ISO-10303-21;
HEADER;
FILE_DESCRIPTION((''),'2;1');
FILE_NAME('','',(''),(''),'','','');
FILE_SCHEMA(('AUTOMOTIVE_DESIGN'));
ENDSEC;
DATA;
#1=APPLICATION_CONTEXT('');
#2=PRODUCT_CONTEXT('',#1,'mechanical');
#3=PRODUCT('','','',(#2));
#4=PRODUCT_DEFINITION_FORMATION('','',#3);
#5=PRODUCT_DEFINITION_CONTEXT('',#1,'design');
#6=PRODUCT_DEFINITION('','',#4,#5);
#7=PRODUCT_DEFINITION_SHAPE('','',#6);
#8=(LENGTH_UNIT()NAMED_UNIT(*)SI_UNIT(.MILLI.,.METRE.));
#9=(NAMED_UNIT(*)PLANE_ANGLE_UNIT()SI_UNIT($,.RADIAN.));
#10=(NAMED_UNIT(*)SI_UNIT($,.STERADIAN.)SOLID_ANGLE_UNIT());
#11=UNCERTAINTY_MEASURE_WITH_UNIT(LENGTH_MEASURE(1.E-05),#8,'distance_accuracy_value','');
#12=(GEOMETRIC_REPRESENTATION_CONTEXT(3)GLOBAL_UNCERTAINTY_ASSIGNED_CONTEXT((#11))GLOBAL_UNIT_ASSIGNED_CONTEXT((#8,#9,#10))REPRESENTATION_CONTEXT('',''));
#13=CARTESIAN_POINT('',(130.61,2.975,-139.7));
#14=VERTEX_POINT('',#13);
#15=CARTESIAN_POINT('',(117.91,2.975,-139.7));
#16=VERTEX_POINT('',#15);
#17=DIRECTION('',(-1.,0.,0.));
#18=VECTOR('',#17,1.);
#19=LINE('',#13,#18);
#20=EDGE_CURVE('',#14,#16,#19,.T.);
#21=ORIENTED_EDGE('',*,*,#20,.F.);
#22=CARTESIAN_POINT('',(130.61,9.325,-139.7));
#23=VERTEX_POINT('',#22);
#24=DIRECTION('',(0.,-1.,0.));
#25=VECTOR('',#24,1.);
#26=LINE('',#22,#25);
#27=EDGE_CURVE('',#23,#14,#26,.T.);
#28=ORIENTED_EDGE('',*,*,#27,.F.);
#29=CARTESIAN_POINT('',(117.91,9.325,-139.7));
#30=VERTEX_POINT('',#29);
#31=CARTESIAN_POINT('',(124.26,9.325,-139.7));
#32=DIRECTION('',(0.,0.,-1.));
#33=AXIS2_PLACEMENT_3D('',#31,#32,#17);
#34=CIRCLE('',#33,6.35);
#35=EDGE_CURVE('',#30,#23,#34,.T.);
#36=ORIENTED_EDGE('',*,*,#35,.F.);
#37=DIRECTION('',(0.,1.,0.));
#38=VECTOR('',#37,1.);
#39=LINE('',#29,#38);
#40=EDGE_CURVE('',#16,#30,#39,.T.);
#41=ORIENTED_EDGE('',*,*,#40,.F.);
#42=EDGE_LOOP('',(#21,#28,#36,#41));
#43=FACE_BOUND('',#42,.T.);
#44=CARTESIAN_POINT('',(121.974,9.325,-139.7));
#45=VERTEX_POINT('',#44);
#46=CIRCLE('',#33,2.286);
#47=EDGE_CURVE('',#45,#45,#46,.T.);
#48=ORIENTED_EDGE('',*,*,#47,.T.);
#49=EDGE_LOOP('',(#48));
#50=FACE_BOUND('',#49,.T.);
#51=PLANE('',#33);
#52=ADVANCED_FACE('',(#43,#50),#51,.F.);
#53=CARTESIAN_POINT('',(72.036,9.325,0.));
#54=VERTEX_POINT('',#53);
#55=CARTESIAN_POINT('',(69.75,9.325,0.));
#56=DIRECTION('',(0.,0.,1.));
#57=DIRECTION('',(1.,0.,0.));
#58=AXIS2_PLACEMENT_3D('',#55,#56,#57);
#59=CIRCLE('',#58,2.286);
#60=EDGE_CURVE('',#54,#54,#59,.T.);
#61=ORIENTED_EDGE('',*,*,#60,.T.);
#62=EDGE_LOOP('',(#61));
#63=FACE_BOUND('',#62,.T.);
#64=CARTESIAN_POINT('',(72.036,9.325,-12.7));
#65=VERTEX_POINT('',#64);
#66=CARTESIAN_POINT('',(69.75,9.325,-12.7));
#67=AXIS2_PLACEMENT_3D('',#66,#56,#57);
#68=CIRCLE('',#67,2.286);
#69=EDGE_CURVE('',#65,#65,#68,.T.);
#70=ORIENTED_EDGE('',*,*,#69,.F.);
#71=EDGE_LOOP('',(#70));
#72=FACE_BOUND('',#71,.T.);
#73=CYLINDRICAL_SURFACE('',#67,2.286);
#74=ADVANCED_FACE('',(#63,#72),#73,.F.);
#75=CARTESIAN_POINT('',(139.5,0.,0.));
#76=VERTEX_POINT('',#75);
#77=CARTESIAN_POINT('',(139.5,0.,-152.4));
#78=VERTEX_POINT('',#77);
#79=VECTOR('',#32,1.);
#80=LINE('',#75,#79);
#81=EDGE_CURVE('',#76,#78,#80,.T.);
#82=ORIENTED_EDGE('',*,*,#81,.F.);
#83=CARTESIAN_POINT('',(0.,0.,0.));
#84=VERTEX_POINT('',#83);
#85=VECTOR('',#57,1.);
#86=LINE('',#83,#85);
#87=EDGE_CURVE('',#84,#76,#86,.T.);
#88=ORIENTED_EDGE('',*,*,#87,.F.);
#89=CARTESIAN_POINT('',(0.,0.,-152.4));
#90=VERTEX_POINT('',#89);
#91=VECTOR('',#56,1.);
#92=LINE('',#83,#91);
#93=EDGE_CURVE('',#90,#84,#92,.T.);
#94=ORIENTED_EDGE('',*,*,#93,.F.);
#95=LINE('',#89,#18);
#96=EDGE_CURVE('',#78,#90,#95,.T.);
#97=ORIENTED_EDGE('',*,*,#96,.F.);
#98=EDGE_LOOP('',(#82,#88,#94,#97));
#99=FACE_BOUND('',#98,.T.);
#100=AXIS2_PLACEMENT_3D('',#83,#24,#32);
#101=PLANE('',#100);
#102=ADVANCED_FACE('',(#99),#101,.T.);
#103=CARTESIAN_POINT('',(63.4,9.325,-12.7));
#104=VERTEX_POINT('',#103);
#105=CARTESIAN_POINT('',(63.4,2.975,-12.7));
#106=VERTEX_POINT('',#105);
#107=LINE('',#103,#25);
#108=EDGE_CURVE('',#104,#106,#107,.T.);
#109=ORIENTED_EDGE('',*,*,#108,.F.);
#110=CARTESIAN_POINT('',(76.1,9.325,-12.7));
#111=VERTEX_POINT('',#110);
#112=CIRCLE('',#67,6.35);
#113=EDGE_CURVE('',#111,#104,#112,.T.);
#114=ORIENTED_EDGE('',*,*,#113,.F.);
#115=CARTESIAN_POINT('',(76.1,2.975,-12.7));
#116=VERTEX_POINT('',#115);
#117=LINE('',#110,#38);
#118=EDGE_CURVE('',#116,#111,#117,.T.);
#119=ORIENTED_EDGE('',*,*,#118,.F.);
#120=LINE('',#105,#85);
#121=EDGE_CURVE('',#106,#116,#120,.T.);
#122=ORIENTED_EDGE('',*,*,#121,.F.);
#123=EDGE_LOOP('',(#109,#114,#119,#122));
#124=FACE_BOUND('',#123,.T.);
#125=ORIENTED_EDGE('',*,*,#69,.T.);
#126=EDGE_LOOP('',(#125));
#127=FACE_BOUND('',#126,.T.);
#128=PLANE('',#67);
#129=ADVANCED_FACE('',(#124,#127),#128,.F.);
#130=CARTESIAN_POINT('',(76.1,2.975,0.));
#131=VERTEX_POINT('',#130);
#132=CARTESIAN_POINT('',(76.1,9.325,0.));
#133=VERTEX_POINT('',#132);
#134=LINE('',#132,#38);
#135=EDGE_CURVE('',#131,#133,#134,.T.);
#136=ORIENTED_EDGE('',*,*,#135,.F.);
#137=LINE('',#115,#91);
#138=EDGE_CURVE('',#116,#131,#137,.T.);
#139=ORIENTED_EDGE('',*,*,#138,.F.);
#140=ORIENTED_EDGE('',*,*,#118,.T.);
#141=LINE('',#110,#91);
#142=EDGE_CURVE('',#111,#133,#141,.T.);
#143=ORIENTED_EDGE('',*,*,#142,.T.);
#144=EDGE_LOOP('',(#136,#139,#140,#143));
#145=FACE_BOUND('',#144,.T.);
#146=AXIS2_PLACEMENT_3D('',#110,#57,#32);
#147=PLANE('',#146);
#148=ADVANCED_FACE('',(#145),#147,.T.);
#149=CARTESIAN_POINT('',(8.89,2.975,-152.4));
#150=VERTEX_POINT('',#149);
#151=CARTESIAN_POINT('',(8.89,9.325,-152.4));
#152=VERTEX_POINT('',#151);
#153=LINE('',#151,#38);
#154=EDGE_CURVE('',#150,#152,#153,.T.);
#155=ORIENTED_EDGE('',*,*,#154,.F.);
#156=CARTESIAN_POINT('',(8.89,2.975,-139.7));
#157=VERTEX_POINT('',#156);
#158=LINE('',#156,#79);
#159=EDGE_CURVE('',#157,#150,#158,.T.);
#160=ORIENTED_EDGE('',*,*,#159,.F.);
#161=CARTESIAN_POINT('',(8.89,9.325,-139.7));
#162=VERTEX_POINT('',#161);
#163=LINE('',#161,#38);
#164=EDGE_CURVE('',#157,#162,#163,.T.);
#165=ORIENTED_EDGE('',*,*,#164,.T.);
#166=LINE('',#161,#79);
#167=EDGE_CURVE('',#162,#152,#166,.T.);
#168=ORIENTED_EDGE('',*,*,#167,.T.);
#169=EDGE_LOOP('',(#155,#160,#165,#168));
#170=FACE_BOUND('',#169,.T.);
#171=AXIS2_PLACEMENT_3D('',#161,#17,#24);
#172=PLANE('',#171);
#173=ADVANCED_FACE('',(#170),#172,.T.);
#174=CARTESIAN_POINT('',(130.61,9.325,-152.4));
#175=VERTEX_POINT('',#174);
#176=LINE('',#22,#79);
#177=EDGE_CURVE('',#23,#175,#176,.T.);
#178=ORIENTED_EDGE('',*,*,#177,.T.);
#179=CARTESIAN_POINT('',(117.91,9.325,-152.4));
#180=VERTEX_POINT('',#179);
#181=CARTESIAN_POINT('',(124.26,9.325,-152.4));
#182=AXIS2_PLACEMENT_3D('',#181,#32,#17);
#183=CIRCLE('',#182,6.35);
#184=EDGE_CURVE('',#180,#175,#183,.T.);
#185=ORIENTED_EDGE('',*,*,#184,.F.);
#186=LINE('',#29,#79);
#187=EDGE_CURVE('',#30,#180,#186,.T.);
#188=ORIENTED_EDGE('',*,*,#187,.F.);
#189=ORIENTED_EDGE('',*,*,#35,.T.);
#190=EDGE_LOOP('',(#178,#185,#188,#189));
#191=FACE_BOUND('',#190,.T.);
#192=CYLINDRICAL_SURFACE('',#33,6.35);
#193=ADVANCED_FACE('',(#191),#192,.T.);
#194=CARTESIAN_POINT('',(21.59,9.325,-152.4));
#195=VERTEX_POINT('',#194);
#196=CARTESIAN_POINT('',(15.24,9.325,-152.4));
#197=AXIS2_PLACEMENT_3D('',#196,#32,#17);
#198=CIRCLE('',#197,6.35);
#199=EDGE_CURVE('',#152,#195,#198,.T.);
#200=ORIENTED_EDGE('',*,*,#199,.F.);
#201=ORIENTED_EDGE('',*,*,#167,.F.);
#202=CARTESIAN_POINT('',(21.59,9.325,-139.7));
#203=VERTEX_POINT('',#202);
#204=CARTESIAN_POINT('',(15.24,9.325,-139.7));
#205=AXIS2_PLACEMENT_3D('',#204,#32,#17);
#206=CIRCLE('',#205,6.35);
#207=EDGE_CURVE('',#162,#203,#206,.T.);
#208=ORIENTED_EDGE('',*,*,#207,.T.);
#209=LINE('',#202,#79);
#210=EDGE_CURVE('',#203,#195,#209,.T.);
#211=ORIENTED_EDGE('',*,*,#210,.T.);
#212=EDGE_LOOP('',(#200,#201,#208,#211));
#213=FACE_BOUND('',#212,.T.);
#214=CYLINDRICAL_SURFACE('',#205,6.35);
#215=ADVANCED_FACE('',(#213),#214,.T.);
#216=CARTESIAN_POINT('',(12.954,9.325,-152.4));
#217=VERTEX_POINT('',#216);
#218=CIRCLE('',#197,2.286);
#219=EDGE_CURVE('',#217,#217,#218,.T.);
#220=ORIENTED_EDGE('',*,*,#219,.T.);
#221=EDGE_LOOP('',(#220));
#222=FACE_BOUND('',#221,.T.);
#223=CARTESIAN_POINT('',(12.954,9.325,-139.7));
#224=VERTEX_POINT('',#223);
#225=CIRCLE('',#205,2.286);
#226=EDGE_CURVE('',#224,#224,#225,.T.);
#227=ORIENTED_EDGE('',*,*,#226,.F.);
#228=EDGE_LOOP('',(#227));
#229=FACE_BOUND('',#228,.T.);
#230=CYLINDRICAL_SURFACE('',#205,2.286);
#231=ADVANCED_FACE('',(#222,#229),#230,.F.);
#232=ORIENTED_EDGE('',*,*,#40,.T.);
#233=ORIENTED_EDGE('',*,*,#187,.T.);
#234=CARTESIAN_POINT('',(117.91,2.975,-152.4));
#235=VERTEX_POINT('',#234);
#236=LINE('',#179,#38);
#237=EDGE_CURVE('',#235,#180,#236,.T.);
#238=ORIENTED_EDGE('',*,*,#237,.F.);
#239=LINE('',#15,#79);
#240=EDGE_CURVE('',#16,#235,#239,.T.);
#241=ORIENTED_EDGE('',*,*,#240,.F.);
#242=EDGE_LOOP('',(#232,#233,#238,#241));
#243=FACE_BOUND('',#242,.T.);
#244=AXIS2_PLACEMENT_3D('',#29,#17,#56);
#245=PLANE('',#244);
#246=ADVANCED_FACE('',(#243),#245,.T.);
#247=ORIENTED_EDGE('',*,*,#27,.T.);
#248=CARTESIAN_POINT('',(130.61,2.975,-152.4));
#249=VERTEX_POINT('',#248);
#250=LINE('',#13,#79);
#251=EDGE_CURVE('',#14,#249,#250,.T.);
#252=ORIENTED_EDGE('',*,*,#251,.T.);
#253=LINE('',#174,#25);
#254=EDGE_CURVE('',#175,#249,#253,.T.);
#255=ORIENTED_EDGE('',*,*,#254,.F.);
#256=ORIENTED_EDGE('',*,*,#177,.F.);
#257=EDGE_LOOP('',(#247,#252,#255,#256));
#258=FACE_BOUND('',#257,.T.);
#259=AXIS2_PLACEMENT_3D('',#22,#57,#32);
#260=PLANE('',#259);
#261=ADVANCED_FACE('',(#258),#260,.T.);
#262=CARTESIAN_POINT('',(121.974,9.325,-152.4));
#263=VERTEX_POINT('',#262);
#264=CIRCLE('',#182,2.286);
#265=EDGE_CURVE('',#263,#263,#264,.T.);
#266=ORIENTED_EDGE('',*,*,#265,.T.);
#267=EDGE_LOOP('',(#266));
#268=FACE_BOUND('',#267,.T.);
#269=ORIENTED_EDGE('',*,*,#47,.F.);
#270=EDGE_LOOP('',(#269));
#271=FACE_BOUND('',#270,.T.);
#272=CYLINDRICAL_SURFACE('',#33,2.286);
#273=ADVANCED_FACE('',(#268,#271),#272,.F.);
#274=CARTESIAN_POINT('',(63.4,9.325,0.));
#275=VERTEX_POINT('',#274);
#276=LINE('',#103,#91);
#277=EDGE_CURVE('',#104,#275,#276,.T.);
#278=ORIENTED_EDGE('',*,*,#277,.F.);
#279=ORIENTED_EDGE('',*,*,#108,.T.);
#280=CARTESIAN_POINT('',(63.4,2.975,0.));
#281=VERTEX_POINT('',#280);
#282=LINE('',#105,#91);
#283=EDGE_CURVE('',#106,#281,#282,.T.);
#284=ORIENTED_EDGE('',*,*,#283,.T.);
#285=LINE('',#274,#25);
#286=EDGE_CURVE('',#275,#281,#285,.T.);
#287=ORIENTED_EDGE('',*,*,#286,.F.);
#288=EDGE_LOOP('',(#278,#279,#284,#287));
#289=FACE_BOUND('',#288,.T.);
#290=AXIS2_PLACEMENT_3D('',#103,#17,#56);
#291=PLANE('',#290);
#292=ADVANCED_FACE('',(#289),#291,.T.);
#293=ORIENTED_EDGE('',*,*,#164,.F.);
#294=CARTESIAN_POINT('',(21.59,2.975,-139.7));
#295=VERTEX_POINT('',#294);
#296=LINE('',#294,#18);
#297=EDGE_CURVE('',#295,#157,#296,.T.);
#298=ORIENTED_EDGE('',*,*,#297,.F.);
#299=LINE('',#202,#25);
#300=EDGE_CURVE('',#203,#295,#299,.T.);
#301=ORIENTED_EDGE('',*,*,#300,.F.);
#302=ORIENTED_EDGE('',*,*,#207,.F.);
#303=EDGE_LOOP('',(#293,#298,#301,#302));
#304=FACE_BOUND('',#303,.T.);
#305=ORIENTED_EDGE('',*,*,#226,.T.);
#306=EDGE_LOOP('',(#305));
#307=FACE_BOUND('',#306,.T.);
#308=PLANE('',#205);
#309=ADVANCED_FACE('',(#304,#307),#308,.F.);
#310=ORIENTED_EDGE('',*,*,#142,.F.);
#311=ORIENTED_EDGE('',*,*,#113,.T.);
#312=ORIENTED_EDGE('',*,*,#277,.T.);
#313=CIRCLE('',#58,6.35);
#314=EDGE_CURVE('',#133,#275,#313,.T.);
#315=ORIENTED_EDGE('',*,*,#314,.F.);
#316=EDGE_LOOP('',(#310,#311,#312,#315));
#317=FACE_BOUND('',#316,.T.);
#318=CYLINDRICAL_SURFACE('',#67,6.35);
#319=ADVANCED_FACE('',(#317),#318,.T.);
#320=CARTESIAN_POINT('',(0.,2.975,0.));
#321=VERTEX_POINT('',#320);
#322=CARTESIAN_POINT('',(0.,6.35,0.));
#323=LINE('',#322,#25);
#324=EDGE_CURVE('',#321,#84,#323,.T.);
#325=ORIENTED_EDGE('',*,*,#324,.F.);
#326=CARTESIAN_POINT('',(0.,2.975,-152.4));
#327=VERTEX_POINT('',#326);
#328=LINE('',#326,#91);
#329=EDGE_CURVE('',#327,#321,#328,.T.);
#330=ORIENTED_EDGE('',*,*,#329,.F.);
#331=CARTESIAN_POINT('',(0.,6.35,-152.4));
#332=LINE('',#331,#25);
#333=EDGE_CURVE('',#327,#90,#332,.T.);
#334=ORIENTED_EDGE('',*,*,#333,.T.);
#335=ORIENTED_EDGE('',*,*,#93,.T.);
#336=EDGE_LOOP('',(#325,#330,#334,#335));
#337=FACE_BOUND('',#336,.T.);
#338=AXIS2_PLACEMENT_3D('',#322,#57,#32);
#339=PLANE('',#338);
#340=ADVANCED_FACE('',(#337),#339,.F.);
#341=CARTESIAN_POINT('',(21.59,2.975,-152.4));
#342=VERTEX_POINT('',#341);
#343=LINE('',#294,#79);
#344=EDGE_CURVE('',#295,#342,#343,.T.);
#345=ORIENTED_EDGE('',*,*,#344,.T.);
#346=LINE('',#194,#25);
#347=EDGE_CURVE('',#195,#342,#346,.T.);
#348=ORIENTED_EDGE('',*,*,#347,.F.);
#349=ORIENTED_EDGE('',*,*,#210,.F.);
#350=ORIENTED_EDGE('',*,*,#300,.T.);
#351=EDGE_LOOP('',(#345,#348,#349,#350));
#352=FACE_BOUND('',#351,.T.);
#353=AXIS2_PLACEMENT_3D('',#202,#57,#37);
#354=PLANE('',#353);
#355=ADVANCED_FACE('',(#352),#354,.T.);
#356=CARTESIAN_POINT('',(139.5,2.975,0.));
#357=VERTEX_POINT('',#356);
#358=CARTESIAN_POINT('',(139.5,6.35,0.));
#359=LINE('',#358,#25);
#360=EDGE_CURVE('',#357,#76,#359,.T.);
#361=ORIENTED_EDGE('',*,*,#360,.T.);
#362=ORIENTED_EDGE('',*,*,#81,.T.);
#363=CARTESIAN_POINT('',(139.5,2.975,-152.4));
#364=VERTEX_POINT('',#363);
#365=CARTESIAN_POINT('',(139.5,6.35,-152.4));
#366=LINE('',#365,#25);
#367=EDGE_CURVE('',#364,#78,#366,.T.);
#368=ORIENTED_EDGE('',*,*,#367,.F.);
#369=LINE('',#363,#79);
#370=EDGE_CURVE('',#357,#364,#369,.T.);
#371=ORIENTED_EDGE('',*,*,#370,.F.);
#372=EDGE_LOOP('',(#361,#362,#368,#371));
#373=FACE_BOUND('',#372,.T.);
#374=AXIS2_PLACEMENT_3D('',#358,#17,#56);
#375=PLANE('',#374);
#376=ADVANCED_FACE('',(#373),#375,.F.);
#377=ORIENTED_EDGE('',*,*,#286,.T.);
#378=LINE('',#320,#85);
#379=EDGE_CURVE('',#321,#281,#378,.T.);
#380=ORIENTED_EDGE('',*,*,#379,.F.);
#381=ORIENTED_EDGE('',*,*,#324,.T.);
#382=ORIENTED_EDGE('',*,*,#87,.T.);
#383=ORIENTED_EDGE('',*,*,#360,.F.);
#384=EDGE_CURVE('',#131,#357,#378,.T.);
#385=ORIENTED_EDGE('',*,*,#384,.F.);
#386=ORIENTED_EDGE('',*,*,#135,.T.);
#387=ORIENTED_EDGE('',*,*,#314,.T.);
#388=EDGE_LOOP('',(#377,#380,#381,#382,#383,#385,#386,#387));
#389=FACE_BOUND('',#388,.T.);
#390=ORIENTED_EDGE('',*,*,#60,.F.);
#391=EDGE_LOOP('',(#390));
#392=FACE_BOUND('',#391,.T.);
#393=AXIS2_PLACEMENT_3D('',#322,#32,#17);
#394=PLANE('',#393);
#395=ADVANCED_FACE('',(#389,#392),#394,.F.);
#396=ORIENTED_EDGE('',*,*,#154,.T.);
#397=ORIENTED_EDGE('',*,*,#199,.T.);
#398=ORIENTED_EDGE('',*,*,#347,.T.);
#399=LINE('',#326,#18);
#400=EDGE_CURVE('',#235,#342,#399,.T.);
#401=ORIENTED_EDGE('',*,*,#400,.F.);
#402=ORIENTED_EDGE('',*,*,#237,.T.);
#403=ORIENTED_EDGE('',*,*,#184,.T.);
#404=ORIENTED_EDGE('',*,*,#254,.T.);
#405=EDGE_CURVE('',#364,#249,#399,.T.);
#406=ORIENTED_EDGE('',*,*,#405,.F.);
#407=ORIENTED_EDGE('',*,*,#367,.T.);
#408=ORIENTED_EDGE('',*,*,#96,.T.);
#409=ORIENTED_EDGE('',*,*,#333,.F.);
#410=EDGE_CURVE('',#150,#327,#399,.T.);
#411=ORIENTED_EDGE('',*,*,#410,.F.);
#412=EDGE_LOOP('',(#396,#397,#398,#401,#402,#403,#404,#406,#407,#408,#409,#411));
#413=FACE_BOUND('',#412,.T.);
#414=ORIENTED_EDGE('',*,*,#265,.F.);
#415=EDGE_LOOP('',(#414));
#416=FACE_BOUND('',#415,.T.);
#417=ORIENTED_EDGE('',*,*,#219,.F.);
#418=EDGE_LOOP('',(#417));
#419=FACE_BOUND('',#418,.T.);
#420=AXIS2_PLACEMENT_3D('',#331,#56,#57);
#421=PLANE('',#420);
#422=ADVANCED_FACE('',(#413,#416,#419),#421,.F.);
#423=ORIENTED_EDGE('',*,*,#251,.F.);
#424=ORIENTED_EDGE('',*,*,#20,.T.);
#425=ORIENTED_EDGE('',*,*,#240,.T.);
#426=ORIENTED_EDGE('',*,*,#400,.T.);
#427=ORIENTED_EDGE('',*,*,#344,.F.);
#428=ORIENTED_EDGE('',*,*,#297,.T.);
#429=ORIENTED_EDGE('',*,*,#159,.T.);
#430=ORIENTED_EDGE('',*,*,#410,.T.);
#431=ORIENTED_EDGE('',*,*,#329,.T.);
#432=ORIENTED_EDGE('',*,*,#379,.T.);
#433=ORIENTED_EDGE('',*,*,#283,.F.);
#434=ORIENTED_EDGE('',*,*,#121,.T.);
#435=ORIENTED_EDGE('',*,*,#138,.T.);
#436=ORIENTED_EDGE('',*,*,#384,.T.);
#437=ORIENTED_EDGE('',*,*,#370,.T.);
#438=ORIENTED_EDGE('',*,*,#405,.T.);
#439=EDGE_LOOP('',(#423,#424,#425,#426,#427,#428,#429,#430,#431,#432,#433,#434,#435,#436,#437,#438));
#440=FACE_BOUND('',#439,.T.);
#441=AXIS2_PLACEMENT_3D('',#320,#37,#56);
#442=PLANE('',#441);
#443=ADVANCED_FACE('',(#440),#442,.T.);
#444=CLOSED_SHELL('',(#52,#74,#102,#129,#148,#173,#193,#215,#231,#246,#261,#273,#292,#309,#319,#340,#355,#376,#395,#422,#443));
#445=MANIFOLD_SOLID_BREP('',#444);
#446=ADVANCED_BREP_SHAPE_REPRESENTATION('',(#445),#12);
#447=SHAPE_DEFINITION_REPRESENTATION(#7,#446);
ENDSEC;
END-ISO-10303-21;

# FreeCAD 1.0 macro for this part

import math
import FreeCAD as App
import Part
import Sketcher
from FreeCAD import Vector
Q = App.Units.Quantity


def add_polygon(sketch, points):
    """Adds a closed chain of lines whose ends are joined by coincident constraints."""
    first, n = sketch.GeometryCount, len(points)
    for a, b in zip(points, points[1:] + points[:1]):
        sketch.addGeometry(Part.LineSegment(App.Vector(*a, 0), App.Vector(*b, 0)), False)
    for i in range(n):
        sketch.addConstraint(Sketcher.Constraint("Coincident", first + i, 2, first + (i + 1) % n, 1))

doc = App.newDocument("Part")
body = doc.addObject("PartDesign::Body", "Body")

# Sketch on XZ plane
sketch1 = body.newObject("Sketcher::SketchObject", "Sketch")
sketch1.AttachmentSupport = (doc.getObject("XZ_Plane"), [""])
sketch1.MapMode = "FlatFace"
add_polygon(sketch1, [(0, -152.4), (0, 0), (139.5, 0), (139.5, -152.4)])  # lines 0-3
sketch1.addConstraint([
    Sketcher.Constraint("Vertical", 0),
    Sketcher.Constraint("Horizontal", 1),
    Sketcher.Constraint("Vertical", 2),
    Sketcher.Constraint("Horizontal", 3),
    Sketcher.Constraint("Coincident", 0, 2, -1, 1),
    Sketcher.Constraint("DistanceY", 0, 1, 0, 2, Q("6 in")),
    Sketcher.Constraint("DistanceX", 1, 1, 1, 2, Q("139.5 mm")),
])
pad1 = body.newObject("PartDesign::Pad", "Pad")
pad1.Profile = sketch1
pad1.Length = Q("0.25 in")
pad1.Reversed = True

# Sketch on XZ plane
sketch2 = body.newObject("Sketcher::SketchObject", "Sketch001")
sketch2.AttachmentSupport = (doc.getObject("XZ_Plane"), [""])
sketch2.MapMode = "FlatFace"
sketch2.AttachmentOffset = App.Placement(Vector(0, 0, -0.25 * 25.4), App.Rotation())
add_polygon(sketch2, [(0, -152.4), (0, 0), (139.5, 0), (139.5, -152.4)])  # lines 0-3
sketch2.addConstraint([
    Sketcher.Constraint("Vertical", 0),
    Sketcher.Constraint("Horizontal", 1),
    Sketcher.Constraint("Vertical", 2),
    Sketcher.Constraint("Horizontal", 3),
    Sketcher.Constraint("Coincident", 0, 2, -1, 1),
    Sketcher.Constraint("DistanceY", 0, 1, 0, 2, Q("6 in")),
    Sketcher.Constraint("DistanceX", 1, 1, 1, 2, Q("139.5 mm")),
])
pocket1 = body.newObject("PartDesign::Pocket", "Pocket")
pocket1.Profile = sketch2
pocket1.Length = 3.375
pocket1.Reversed = True

# Sketch on XY plane
sketch3 = body.newObject("Sketcher::SketchObject", "Sketch002")
sketch3.AttachmentSupport = (doc.getObject("XY_Plane"), [""])
sketch3.MapMode = "FlatFace"
sketch3.addGeometry([
    Part.LineSegment(Vector(63.4, 9.325, 0), Vector(63.4, 2.975, 0)),  # 0
    Part.LineSegment(Vector(63.4, 2.975, 0), Vector(76.1, 2.975, 0)),  # 1
    Part.LineSegment(Vector(76.1, 2.975, 0), Vector(76.1, 9.325, 0)),  # 2
    Part.ArcOfCircle(Part.Circle(Vector(69.75, 9.325, 0), Vector(0, 0, 1), 6.35), math.radians(0), math.radians(180.000001)),  # 3
    Part.Circle(Vector(69.75, 9.325, 0), Vector(0, 0, 1), 2.286),  # 4
], False)
sketch3.addConstraint([
    Sketcher.Constraint("Coincident", 0, 2, 1, 1),
    Sketcher.Constraint("Coincident", 1, 2, 2, 1),
    Sketcher.Constraint("Tangent", 2, 2, 3, 1),
    Sketcher.Constraint("Tangent", 3, 2, 0, 1),
    Sketcher.Constraint("Vertical", 0),
    Sketcher.Constraint("Horizontal", 1),
    Sketcher.Constraint("Vertical", 2),
    Sketcher.Constraint("Coincident", 4, 3, 3, 3),
    Sketcher.Constraint("Diameter", 4, Q("0.18 in")),
    Sketcher.Constraint("Radius", 3, Q("0.25 in")),
    Sketcher.Constraint("DistanceY", 0, 2, 0, 1, Q("0.25 in")),
    Sketcher.Constraint("DistanceX", -1, 1, 3, 3, Q("69.75 mm")),
    Sketcher.Constraint("DistanceY", -1, 1, 3, 3, Q("9.325 mm")),
])
pad2 = body.newObject("PartDesign::Pad", "Pad001")
pad2.Profile = sketch3
pad2.Length = Q("0.5 in")
pad2.Reversed = True

# Sketch on XY plane
sketch4 = body.newObject("Sketcher::SketchObject", "Sketch003")
sketch4.AttachmentSupport = (doc.getObject("XY_Plane"), [""])
sketch4.MapMode = "FlatFace"
sketch4.AttachmentOffset = App.Placement(Vector(0, 0, -6 * 25.4), App.Rotation())
sketch4.addGeometry([
    Part.LineSegment(Vector(130.61, 9.325, 0), Vector(130.61, 2.975, 0)),  # 0
    Part.LineSegment(Vector(130.61, 2.975, 0), Vector(117.91, 2.975, 0)),  # 1
    Part.LineSegment(Vector(117.91, 2.975, 0), Vector(117.91, 9.325, 0)),  # 2
    Part.ArcOfCircle(Part.Circle(Vector(124.26, 9.325, 0), Vector(0, 0, 1), 6.35), math.radians(0), math.radians(180)),  # 3
    Part.Circle(Vector(124.26, 9.325, 0), Vector(0, 0, 1), 2.286),  # 4
    Part.LineSegment(Vector(21.59, 9.325, 0), Vector(21.59, 2.975, 0)),  # 5
    Part.LineSegment(Vector(21.59, 2.975, 0), Vector(8.89, 2.975, 0)),  # 6
    Part.LineSegment(Vector(8.89, 2.975, 0), Vector(8.89, 9.325, 0)),  # 7
    Part.ArcOfCircle(Part.Circle(Vector(15.24, 9.325, 0), Vector(0, 0, 1), 6.35), math.radians(0), math.radians(180)),  # 8
    Part.Circle(Vector(15.24, 9.325, 0), Vector(0, 0, 1), 2.286),  # 9
], False)
sketch4.addConstraint([
    Sketcher.Constraint("Coincident", 0, 2, 1, 1),
    Sketcher.Constraint("Coincident", 1, 2, 2, 1),
    Sketcher.Constraint("Tangent", 2, 2, 3, 2),
    Sketcher.Constraint("Tangent", 3, 1, 0, 1),
    Sketcher.Constraint("Coincident", 5, 2, 6, 1),
    Sketcher.Constraint("Coincident", 6, 2, 7, 1),
    Sketcher.Constraint("Tangent", 7, 2, 8, 2),
    Sketcher.Constraint("Tangent", 8, 1, 5, 1),
    Sketcher.Constraint("Vertical", 0),
    Sketcher.Constraint("Horizontal", 1),
    Sketcher.Constraint("Vertical", 2),
    Sketcher.Constraint("Vertical", 5),
    Sketcher.Constraint("Horizontal", 6),
    Sketcher.Constraint("Vertical", 7),
    Sketcher.Constraint("Coincident", 4, 3, 3, 3),
    Sketcher.Constraint("Coincident", 9, 3, 8, 3),
    Sketcher.Constraint("Equal", 3, 8),
    Sketcher.Constraint("Equal", 4, 9),
    Sketcher.Constraint("Horizontal", 4, 3, 8, 3),
    Sketcher.Constraint("Horizontal", 1, 2, 5, 2),
    Sketcher.Constraint("Diameter", 4, Q("0.18 in")),
    Sketcher.Constraint("Radius", 3, Q("0.25 in")),
    Sketcher.Constraint("DistanceY", 0, 2, 0, 1, Q("0.25 in")),
    Sketcher.Constraint("DistanceX", -1, 1, 8, 3, Q("0.6 in")),
    Sketcher.Constraint("DistanceX", -1, 1, 3, 3, Q("124.26 mm")),
    Sketcher.Constraint("DistanceY", -1, 1, 3, 3, Q("9.325 mm")),
])
pad3 = body.newObject("PartDesign::Pad", "Pad002")
pad3.Profile = sketch4
pad3.Length = Q("0.5 in")

doc.recompute()
